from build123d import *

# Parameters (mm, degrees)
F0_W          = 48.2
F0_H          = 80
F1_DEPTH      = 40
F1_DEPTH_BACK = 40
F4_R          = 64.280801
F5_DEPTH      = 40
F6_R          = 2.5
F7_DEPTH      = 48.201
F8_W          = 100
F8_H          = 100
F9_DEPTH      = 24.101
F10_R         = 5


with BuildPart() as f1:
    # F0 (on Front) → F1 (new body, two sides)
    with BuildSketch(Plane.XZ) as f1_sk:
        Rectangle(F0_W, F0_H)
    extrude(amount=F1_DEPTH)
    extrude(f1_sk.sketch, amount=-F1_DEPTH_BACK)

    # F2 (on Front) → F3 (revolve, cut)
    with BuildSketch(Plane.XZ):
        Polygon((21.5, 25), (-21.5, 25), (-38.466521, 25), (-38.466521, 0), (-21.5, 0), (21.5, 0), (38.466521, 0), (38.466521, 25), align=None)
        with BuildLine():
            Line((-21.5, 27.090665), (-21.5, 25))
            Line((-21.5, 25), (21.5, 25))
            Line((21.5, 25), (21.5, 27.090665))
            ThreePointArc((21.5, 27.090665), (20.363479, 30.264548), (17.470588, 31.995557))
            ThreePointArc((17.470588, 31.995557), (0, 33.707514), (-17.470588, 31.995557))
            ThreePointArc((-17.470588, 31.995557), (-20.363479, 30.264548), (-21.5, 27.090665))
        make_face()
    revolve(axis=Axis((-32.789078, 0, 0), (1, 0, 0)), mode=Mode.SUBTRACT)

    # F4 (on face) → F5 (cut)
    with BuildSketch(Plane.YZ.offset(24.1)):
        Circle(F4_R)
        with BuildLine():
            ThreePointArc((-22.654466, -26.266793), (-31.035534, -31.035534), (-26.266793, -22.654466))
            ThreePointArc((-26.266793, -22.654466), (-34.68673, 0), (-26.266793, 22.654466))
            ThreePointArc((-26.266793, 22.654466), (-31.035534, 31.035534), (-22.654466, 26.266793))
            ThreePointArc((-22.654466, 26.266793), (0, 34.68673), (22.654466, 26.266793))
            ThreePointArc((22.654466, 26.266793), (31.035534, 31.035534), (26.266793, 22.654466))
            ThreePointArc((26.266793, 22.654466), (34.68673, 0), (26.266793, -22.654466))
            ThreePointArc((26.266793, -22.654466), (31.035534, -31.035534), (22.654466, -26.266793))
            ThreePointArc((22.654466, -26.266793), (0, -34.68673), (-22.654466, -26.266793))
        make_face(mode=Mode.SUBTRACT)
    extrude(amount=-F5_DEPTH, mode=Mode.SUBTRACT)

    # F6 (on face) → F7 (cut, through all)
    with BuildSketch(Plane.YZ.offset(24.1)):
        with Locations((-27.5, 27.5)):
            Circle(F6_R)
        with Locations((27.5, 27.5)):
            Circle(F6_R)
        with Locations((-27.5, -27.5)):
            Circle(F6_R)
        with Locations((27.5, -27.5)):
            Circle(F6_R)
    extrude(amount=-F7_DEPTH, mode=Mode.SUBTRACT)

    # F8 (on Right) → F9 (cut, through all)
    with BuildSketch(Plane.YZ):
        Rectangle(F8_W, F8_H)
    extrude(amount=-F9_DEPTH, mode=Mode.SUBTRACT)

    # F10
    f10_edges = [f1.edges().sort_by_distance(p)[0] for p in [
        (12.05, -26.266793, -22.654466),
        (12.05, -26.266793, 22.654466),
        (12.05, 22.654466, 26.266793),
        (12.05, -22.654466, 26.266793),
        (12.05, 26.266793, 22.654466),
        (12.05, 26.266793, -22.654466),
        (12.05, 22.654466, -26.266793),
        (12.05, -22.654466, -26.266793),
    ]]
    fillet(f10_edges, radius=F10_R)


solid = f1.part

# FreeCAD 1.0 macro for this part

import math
import FreeCAD as App
import Part
import Sketcher


def edges_at(feature, points):
    """Names of the edges that pass closest to the given points."""
    edges = feature.Shape.Edges
    near = lambda p: min(range(len(edges)), key=lambda i: edges[i].distToShape(Part.Vertex(*p))[0])
    return sorted({f"Edge{near(p) + 1}" for p in points})

doc = App.newDocument("Part")
params = doc.addObject("Spreadsheet::Sheet", "Params")
for row, (alias, value) in enumerate([
    ("sketch1_height", "80 mm"),
    ("sketch1_width", "48.2 mm"),
    ("pad1_length", "40 mm"),
    ("pad1_length2", "40 mm"),
    ("sketch2_radius", "5 mm"),
    ("sketch2_height", "25 mm"),
    ("groove_angle", "360 deg"),
    ("sketch3_radius", "5 mm"),
    ("pocket1_length", "40 mm"),
    ("sketch4_diameter", "5 mm"),
    ("sketch5_width", "100 mm"),
    ("fillet_radius", "5 mm"),
], start=1):
    params.set(f"A{row}", alias)
    params.set(f"B{row}", "=" + value)
    params.setAlias(f"B{row}", alias)

body = doc.addObject("PartDesign::Body", "Body")

sketch1 = body.newObject("Sketcher::SketchObject", "Sketch")
sketch1.AttachmentSupport = (doc.getObject("XZ_Plane"), [""])
sketch1.MapMode = "FlatFace"
sketch1.addGeometry([
    Part.LineSegment(App.Vector(-24, 40, 0), App.Vector(-24, -40, 0)),
    Part.LineSegment(App.Vector(-24, -40, 0), App.Vector(24, -40, 0)),
    Part.LineSegment(App.Vector(24, -40, 0), App.Vector(24, 40, 0)),
    Part.LineSegment(App.Vector(24, 40, 0), App.Vector(-24, 40, 0)),
], False)
sketch1.addConstraint([
    Sketcher.Constraint("Coincident", 0, 2, 1, 1),
    Sketcher.Constraint("Coincident", 1, 2, 2, 1),
    Sketcher.Constraint("Coincident", 2, 2, 3, 1),
    Sketcher.Constraint("Coincident", 3, 2, 0, 1),
    Sketcher.Constraint("Vertical", 0),
    Sketcher.Constraint("Horizontal", 1),
    Sketcher.Constraint("Vertical", 2),
    Sketcher.Constraint("Horizontal", 3),
    Sketcher.Constraint("Symmetric", 0, 2, 2, 2, -1, 1),
    Sketcher.Constraint("DistanceY", 0, 2, 0, 1, 80.0),
    Sketcher.Constraint("DistanceX", 1, 1, 1, 2, 48.2),
])
sketch1.setExpression("Constraints[9]", "Params.sketch1_height")
sketch1.setExpression("Constraints[10]", "Params.sketch1_width")
pad1 = body.newObject("PartDesign::Pad", "Pad")
pad1.Profile = sketch1
pad1.Type = "TwoLengths"
pad1.setExpression("Length", "Params.pad1_length")
pad1.setExpression("Length2", "Params.pad1_length2")

sketch2 = body.newObject("Sketcher::SketchObject", "Sketch001")
sketch2.AttachmentSupport = (doc.getObject("XZ_Plane"), [""])
sketch2.MapMode = "FlatFace"
sketch2.addGeometry([
    Part.LineSegment(App.Vector(-38.5, 25, 0), App.Vector(-38.5, 0, 0)),
    Part.LineSegment(App.Vector(-38.5, 0, 0), App.Vector(38.5, 0, 0)),
    Part.LineSegment(App.Vector(38.5, 0, 0), App.Vector(38.5, 25, 0)),
    Part.LineSegment(App.Vector(38.5, 25, 0), App.Vector(21.5, 25, 0)),
    Part.LineSegment(App.Vector(21.5, 25, 0), App.Vector(21.5, 27.1, 0)),
    Part.ArcOfCircle(Part.Circle(App.Vector(16.5, 27.1, 0), App.Vector(0, 0, 1), 5), math.radians(0), math.radians(79)),
    Part.ArcOfCircle(Part.Circle(App.Vector(0, -56.3, 0), App.Vector(0, 0, 1), 90), math.radians(79), math.radians(101)),
    Part.ArcOfCircle(Part.Circle(App.Vector(-16.5, 27.1, 0), App.Vector(0, 0, 1), 5), math.radians(101), math.radians(180)),
    Part.LineSegment(App.Vector(-21.5, 27.1, 0), App.Vector(-21.5, 25, 0)),
    Part.LineSegment(App.Vector(-21.5, 25, 0), App.Vector(-38.5, 25, 0)),
], False)
sketch2.addConstraint([
    Sketcher.Constraint("Coincident", 0, 2, 1, 1),
    Sketcher.Constraint("Coincident", 1, 2, 2, 1),
    Sketcher.Constraint("Coincident", 2, 2, 3, 1),
    Sketcher.Constraint("Coincident", 3, 2, 4, 1),
    Sketcher.Constraint("Tangent", 4, 2, 5, 1),
    Sketcher.Constraint("Tangent", 5, 2, 6, 1),
    Sketcher.Constraint("Tangent", 6, 2, 7, 1),
    Sketcher.Constraint("Tangent", 7, 2, 8, 1),
    Sketcher.Constraint("Coincident", 8, 2, 9, 1),
    Sketcher.Constraint("Coincident", 9, 2, 0, 1),
    Sketcher.Constraint("Vertical", 0),
    Sketcher.Constraint("Horizontal", 1),
    Sketcher.Constraint("Vertical", 2),
    Sketcher.Constraint("Horizontal", 3),
    Sketcher.Constraint("Vertical", 4),
    Sketcher.Constraint("Vertical", 8),
    Sketcher.Constraint("Horizontal", 9),
    Sketcher.Constraint("Equal", 5, 7),
    Sketcher.Constraint("Symmetric", 0, 2, 1, 2, -1, 1),
    Sketcher.Constraint("Symmetric", 5, 3, 7, 3, -2),
    Sketcher.Constraint("Horizontal", 3, 2, 8, 2),
    Sketcher.Constraint("Radius", 5, 5.0),
    Sketcher.Constraint("DistanceY", 0, 2, 0, 1, 25.0),
    Sketcher.Constraint("DistanceX", 7, 3, 5, 3, 32.999999),
    Sketcher.Constraint("Radius", 6, 89.999995),
    Sketcher.Constraint("DistanceX", 1, 1, 1, 2, 76.933042),
    Sketcher.Constraint("DistanceY", 4, 1, 4, 2, 2.090665),
])
sketch2.setExpression("Constraints[21]", "Params.sketch2_radius")
sketch2.setExpression("Constraints[22]", "Params.sketch2_height")
groove = body.newObject("PartDesign::Groove", "Groove")
groove.Profile = sketch2
groove.ReferenceAxis = (sketch2, ["H_Axis"])
groove.setExpression("Angle", "Params.groove_angle")

sketch3 = body.newObject("Sketcher::SketchObject", "Sketch002")
sketch3.AttachmentSupport = (doc.getObject("YZ_Plane"), [""])
sketch3.MapMode = "FlatFace"
sketch3.AttachmentOffset = App.Placement(App.Vector(0, 0, 24.1), App.Rotation())
sketch3.addGeometry([
    Part.Circle(App.Vector(0, 0, 0), App.Vector(0, 0, 1), 64),
    Part.ArcOfCircle(Part.Circle(App.Vector(0, 0, 0), App.Vector(0, 0, 1), 35), math.radians(-131), math.radians(-49)),
    Part.ArcOfCircle(Part.Circle(App.Vector(-28, -28, 0), App.Vector(0, 0, 1), 5), math.radians(76), math.radians(374)),
    Part.ArcOfCircle(Part.Circle(App.Vector(0, 0, 0), App.Vector(0, 0, 1), 35), math.radians(139), math.radians(221)),
    Part.ArcOfCircle(Part.Circle(App.Vector(-28, 28, 0), App.Vector(0, 0, 1), 5), math.radians(-14), math.radians(284)),
    Part.ArcOfCircle(Part.Circle(App.Vector(0, 0, 0), App.Vector(0, 0, 1), 35), math.radians(49), math.radians(131)),
    Part.ArcOfCircle(Part.Circle(App.Vector(28, 28, 0), App.Vector(0, 0, 1), 5), math.radians(-104), math.radians(194)),
    Part.ArcOfCircle(Part.Circle(App.Vector(0, 0, 0), App.Vector(0, 0, 1), 35), math.radians(-41), math.radians(41)),
    Part.ArcOfCircle(Part.Circle(App.Vector(28, -28, 0), App.Vector(0, 0, 1), 5), math.radians(166), math.radians(464)),
], False)
sketch3.addConstraint([
    Sketcher.Constraint("Coincident", 1, 1, 2, 2),
    Sketcher.Constraint("Coincident", 2, 1, 3, 2),
    Sketcher.Constraint("Coincident", 3, 1, 4, 2),
    Sketcher.Constraint("Coincident", 4, 1, 5, 2),
    Sketcher.Constraint("Coincident", 5, 1, 6, 2),
    Sketcher.Constraint("Coincident", 6, 1, 7, 2),
    Sketcher.Constraint("Coincident", 7, 1, 8, 2),
    Sketcher.Constraint("Coincident", 8, 1, 1, 2),
    Sketcher.Constraint("Coincident", 0, 3, -1, 1),
    Sketcher.Constraint("Coincident", 1, 3, -1, 1),
    Sketcher.Constraint("Coincident", 3, 3, -1, 1),
    Sketcher.Constraint("Coincident", 5, 3, -1, 1),
    Sketcher.Constraint("Coincident", 7, 3, -1, 1),
    Sketcher.Constraint("Equal", 1, 3),
    Sketcher.Constraint("Equal", 2, 4),
    Sketcher.Constraint("Equal", 3, 5),
    Sketcher.Constraint("Equal", 4, 6),
    Sketcher.Constraint("Equal", 5, 7),
    Sketcher.Constraint("Equal", 6, 8),
    Sketcher.Constraint("Symmetric", 2, 3, 6, 3, -1, 1),
    Sketcher.Constraint("Symmetric", 4, 3, 8, 3, -1, 1),
    Sketcher.Constraint("Symmetric", 4, 3, 6, 3, -2),
    Sketcher.Constraint("Radius", 2, 5.0),
    Sketcher.Constraint("DistanceY", 2, 3, 4, 3, 55.0),
    Sketcher.Constraint("DistanceX", 4, 3, 6, 3, 55.0),
    Sketcher.Constraint("Diameter", 0, 128.561602),
    Sketcher.Constraint("Radius", 1, 34.68673),
])
sketch3.setExpression("Constraints[22]", "Params.sketch3_radius")
pocket1 = body.newObject("PartDesign::Pocket", "Pocket")
pocket1.Profile = sketch3
pocket1.setExpression("Length", "Params.pocket1_length")

sketch4 = body.newObject("Sketcher::SketchObject", "Sketch003")
sketch4.AttachmentSupport = (doc.getObject("YZ_Plane"), [""])
sketch4.MapMode = "FlatFace"
sketch4.AttachmentOffset = App.Placement(App.Vector(0, 0, 24.1), App.Rotation())
sketch4.addGeometry([
    Part.Circle(App.Vector(-27.5, 27.5, 0), App.Vector(0, 0, 1), 2.5),
    Part.Circle(App.Vector(27.5, 27.5, 0), App.Vector(0, 0, 1), 2.5),
    Part.Circle(App.Vector(-27.5, -27.5, 0), App.Vector(0, 0, 1), 2.5),
    Part.Circle(App.Vector(27.5, -27.5, 0), App.Vector(0, 0, 1), 2.5),
], False)
sketch4.addConstraint([
    Sketcher.Constraint("Equal", 0, 1),
    Sketcher.Constraint("Equal", 1, 2),
    Sketcher.Constraint("Equal", 2, 3),
    Sketcher.Constraint("Symmetric", 1, 3, 2, 3, -1, 1),
    Sketcher.Constraint("Symmetric", 0, 3, 3, 3, -1, 1),
    Sketcher.Constraint("Symmetric", 0, 3, 1, 3, -2),
    Sketcher.Constraint("Diameter", 0, 5.0),
    Sketcher.Constraint("DistanceX", 0, 3, 1, 3, 55.0),
    Sketcher.Constraint("DistanceY", 2, 3, 0, 3, 55.0),
])
sketch4.setExpression("Constraints[6]", "Params.sketch4_diameter")
pocket2 = body.newObject("PartDesign::Pocket", "Pocket001")
pocket2.Profile = sketch4
pocket2.Type = "ThroughAll"

sketch5 = body.newObject("Sketcher::SketchObject", "Sketch004")
sketch5.AttachmentSupport = (doc.getObject("YZ_Plane"), [""])
sketch5.MapMode = "FlatFace"
sketch5.addGeometry([
    Part.LineSegment(App.Vector(-50, 50, 0), App.Vector(-50, -50, 0)),
    Part.LineSegment(App.Vector(-50, -50, 0), App.Vector(50, -50, 0)),
    Part.LineSegment(App.Vector(50, -50, 0), App.Vector(50, 50, 0)),
    Part.LineSegment(App.Vector(50, 50, 0), App.Vector(-50, 50, 0)),
], False)
sketch5.addConstraint([
    Sketcher.Constraint("Coincident", 0, 2, 1, 1),
    Sketcher.Constraint("Coincident", 1, 2, 2, 1),
    Sketcher.Constraint("Coincident", 2, 2, 3, 1),
    Sketcher.Constraint("Coincident", 3, 2, 0, 1),
    Sketcher.Constraint("Vertical", 0),
    Sketcher.Constraint("Horizontal", 1),
    Sketcher.Constraint("Vertical", 2),
    Sketcher.Constraint("Horizontal", 3),
    Sketcher.Constraint("Symmetric", 0, 2, 2, 2, -1, 1),
    Sketcher.Constraint("Equal", 3, 0),
    Sketcher.Constraint("DistanceX", 1, 1, 1, 2, 100.0),
])
sketch5.setExpression("Constraints[10]", "Params.sketch5_width")
pocket3 = body.newObject("PartDesign::Pocket", "Pocket002")
pocket3.Profile = sketch5
pocket3.Type = "ThroughAll"
doc.recompute()

fillet = body.newObject("PartDesign::Fillet", "Fillet")
fillet.Base = (pocket3, edges_at(pocket3, [
    (12.05, -26.267, -22.654),
    (12.05, -26.267, 22.654),
    (12.05, 22.654, 26.267),
    (12.05, -22.654, 26.267),
    (12.05, 26.267, 22.654),
    (12.05, 26.267, -22.654),
    (12.05, 22.654, -26.267),
    (12.05, -22.654, -26.267),
]))
fillet.setExpression("Radius", "Params.fillet_radius")

doc.recompute()
